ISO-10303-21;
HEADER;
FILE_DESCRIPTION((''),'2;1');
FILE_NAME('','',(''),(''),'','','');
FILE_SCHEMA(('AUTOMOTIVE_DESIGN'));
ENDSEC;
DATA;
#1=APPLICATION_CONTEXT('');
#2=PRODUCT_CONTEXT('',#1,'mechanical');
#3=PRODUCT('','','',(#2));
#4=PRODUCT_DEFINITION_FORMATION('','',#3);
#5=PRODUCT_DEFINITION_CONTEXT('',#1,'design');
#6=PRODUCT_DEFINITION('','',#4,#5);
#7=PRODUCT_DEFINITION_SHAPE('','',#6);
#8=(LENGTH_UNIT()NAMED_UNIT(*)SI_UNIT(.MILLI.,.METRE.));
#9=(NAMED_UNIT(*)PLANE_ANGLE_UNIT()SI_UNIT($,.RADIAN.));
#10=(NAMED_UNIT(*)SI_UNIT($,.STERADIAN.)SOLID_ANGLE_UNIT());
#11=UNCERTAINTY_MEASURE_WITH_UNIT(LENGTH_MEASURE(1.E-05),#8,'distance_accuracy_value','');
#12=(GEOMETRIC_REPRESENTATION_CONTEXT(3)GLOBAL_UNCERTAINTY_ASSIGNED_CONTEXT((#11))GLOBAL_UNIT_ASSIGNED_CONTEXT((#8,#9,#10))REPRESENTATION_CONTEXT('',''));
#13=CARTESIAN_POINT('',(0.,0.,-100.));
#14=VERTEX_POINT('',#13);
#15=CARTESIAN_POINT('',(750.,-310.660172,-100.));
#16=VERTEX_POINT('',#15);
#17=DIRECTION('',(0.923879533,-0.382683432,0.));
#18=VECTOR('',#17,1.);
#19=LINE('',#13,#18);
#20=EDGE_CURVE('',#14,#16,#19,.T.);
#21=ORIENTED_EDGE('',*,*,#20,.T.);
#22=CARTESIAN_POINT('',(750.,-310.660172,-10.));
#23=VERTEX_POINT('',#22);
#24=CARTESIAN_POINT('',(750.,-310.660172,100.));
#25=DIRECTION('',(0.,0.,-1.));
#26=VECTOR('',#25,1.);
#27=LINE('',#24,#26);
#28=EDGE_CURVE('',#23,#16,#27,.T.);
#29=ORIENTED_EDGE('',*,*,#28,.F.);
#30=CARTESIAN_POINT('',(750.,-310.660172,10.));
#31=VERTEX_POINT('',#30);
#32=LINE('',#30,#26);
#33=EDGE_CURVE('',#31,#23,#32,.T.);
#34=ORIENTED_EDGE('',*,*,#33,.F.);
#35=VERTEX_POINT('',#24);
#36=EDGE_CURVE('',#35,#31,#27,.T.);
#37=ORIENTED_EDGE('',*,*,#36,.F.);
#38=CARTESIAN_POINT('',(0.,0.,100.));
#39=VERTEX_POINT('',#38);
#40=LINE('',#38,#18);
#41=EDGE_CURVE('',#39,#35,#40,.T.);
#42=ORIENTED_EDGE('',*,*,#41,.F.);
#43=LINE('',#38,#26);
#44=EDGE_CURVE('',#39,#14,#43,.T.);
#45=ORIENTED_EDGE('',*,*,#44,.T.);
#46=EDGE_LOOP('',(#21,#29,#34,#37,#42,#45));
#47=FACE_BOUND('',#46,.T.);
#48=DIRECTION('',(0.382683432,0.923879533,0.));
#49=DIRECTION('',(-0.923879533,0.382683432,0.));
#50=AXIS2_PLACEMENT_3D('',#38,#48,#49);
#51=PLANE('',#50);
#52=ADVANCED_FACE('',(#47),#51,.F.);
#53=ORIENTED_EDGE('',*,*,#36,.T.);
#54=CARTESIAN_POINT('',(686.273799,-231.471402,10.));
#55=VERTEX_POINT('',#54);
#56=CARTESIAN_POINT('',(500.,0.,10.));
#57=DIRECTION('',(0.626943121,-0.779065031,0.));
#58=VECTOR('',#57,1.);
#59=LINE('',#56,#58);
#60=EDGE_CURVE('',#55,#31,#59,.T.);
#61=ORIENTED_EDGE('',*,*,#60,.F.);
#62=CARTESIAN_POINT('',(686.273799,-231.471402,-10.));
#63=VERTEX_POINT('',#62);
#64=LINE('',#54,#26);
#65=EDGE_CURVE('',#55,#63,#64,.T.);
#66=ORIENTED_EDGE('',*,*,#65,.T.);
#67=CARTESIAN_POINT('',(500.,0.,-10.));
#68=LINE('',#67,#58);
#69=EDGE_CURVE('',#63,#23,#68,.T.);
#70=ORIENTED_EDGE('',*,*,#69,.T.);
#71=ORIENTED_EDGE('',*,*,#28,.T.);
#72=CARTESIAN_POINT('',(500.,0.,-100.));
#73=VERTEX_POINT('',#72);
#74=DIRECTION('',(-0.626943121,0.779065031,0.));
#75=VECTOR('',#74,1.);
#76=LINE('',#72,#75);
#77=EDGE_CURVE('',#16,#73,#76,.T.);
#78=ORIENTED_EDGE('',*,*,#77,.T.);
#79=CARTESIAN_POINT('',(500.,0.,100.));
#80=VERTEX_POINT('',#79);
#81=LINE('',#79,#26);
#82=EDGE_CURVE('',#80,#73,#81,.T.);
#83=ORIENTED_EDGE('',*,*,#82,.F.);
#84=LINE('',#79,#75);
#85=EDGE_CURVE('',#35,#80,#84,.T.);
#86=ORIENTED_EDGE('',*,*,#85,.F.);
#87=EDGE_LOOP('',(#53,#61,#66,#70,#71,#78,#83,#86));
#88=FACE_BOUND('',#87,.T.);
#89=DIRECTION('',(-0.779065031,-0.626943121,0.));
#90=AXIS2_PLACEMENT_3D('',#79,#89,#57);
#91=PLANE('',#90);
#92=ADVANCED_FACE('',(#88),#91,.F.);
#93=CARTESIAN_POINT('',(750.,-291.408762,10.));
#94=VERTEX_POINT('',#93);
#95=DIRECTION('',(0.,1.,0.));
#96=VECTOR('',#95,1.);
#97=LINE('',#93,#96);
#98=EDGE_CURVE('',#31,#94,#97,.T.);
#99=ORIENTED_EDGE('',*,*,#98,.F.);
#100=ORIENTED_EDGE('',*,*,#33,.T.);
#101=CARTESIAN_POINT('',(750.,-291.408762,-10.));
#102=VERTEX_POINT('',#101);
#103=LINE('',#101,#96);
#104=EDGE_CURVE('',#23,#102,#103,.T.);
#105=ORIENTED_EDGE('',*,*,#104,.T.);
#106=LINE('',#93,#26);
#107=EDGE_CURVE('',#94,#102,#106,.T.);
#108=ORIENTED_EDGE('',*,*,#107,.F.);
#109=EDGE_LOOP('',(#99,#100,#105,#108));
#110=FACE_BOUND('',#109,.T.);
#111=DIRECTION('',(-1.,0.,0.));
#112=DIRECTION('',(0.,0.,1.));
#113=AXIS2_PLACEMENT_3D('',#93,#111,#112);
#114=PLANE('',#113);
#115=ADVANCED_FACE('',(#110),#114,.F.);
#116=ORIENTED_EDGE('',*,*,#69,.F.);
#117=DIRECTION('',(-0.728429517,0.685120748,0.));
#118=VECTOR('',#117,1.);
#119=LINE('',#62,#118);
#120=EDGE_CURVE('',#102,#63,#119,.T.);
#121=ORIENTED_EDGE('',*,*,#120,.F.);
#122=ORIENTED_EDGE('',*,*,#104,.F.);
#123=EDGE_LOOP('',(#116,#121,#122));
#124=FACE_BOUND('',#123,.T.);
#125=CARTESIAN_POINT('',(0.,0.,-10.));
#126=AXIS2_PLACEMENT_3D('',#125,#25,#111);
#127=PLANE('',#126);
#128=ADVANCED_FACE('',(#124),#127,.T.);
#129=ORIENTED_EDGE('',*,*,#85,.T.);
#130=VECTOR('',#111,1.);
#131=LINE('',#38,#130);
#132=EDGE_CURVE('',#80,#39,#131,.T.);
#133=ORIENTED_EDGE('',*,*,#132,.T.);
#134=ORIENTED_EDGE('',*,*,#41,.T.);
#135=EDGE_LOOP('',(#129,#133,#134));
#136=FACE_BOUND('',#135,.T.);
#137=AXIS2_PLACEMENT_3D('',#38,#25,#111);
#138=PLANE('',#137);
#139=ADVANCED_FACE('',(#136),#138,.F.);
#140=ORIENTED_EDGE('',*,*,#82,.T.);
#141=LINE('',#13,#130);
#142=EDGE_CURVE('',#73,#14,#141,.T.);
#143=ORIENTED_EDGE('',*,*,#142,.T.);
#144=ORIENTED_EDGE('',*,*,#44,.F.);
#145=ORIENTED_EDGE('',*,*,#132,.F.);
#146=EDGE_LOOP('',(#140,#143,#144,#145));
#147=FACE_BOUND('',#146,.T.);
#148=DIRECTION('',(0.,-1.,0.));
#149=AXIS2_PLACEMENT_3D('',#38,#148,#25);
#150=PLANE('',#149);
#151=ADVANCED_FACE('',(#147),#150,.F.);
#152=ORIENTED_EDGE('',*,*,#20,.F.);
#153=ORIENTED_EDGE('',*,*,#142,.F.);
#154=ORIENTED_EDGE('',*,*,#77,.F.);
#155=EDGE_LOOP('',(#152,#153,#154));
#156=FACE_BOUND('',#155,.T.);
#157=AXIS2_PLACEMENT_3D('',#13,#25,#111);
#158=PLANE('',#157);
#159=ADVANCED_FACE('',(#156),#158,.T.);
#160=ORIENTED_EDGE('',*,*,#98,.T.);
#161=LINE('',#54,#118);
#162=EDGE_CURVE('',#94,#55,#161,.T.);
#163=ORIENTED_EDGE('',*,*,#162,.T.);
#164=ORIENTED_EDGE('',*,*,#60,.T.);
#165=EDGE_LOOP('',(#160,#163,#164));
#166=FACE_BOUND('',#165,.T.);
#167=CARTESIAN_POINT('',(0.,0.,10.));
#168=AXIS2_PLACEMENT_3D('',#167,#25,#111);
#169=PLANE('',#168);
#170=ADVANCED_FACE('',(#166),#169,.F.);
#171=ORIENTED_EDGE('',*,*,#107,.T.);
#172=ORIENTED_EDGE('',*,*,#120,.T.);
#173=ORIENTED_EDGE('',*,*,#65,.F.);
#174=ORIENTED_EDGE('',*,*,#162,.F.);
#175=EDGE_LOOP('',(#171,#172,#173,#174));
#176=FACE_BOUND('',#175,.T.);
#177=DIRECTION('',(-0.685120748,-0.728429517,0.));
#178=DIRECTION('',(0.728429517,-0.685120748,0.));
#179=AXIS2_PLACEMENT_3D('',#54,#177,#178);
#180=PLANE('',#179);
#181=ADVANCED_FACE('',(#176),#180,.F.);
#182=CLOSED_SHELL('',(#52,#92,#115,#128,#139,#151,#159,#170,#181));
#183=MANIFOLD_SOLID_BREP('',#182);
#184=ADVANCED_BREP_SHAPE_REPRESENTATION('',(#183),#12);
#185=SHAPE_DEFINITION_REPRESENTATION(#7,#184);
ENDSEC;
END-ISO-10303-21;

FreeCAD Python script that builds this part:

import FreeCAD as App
import Part
import Sketcher

V = App.Vector
Q = App.Units.Quantity


def add_polygon(sketch, points):
    """Adds a closed chain of lines whose ends are joined by coincident constraints."""
    first, n = sketch.GeometryCount, len(points)
    for a, b in zip(points, points[1:] + points[:1]):
        sketch.addGeometry(Part.LineSegment(App.Vector(*a, 0), App.Vector(*b, 0)), False)
    for i in range(n):
        sketch.addConstraint(Sketcher.Constraint("Coincident", first + i, 2, first + (i + 1) % n, 1))

doc = App.newDocument("Part")
body = doc.addObject("PartDesign::Body", "Body")

# Sketch on XY plane
sketch1 = body.newObject("Sketcher::SketchObject", "Sketch")
sketch1.AttachmentSupport = (doc.getObject("XY_Plane"), [""])
sketch1.MapMode = "FlatFace"
add_polygon(sketch1, [(500, 0), (0, 0), (750, -311)])  # lines 0-2
sketch1.addConstraint(Sketcher.Constraint("Horizontal", 0))
sketch1.addConstraint(Sketcher.Constraint("Coincident", 0, 2, -1, 1))
sketch1.addConstraint(Sketcher.Constraint("DistanceX", 0, 2, 0, 1, Q("500 mm")))
sketch1.addConstraint(Sketcher.Constraint("DistanceX", -1, 1, 1, 2, Q("750 mm")))
sketch1.addConstraint(Sketcher.Constraint("Angle", 1, Q("-22.5 deg")))
pad1 = body.newObject("PartDesign::Pad", "Pad")
pad1.Profile = sketch1
pad1.Length = 200
pad1.Midplane = True

# Sketch on XY plane
sketch2 = body.newObject("Sketcher::SketchObject", "Sketch001")
sketch2.AttachmentSupport = (doc.getObject("XY_Plane"), [""])
sketch2.MapMode = "FlatFace"
add_polygon(sketch2, [(686, -231), (686, -284), (750, -311), (750, -291)])  # lines 0-3
sketch2.addConstraint(Sketcher.Constraint("Vertical", 0))
sketch2.addConstraint(Sketcher.Constraint("Vertical", 2))
sketch2.addConstraint(Sketcher.Constraint("DistanceX", -1, 1, 1, 2, Q("750 mm")))
sketch2.addConstraint(Sketcher.Constraint("Angle", 1, Q("-22.5 deg")))
sketch2.addConstraint(Sketcher.Constraint("DistanceY", 2, 1, 2, 2, Q("19.25141 mm")))
sketch2.addConstraint(Sketcher.Constraint("DistanceX", -1, 1, 0, 2, Q("686.273799 mm")))
sketch2.addConstraint(Sketcher.Constraint("DistanceY", 3, 2, -1, 1, Q("231.471402 mm")))
sketch2.addConstraint(Sketcher.Constraint("DistanceY", 0, 2, 0, 1, Q("52.792513 mm")))
pad2 = body.newObject("PartDesign::Pad", "Pad001")
pad2.Profile = sketch2
pad2.Length = 20
pad2.Midplane = True

doc.recompute()
